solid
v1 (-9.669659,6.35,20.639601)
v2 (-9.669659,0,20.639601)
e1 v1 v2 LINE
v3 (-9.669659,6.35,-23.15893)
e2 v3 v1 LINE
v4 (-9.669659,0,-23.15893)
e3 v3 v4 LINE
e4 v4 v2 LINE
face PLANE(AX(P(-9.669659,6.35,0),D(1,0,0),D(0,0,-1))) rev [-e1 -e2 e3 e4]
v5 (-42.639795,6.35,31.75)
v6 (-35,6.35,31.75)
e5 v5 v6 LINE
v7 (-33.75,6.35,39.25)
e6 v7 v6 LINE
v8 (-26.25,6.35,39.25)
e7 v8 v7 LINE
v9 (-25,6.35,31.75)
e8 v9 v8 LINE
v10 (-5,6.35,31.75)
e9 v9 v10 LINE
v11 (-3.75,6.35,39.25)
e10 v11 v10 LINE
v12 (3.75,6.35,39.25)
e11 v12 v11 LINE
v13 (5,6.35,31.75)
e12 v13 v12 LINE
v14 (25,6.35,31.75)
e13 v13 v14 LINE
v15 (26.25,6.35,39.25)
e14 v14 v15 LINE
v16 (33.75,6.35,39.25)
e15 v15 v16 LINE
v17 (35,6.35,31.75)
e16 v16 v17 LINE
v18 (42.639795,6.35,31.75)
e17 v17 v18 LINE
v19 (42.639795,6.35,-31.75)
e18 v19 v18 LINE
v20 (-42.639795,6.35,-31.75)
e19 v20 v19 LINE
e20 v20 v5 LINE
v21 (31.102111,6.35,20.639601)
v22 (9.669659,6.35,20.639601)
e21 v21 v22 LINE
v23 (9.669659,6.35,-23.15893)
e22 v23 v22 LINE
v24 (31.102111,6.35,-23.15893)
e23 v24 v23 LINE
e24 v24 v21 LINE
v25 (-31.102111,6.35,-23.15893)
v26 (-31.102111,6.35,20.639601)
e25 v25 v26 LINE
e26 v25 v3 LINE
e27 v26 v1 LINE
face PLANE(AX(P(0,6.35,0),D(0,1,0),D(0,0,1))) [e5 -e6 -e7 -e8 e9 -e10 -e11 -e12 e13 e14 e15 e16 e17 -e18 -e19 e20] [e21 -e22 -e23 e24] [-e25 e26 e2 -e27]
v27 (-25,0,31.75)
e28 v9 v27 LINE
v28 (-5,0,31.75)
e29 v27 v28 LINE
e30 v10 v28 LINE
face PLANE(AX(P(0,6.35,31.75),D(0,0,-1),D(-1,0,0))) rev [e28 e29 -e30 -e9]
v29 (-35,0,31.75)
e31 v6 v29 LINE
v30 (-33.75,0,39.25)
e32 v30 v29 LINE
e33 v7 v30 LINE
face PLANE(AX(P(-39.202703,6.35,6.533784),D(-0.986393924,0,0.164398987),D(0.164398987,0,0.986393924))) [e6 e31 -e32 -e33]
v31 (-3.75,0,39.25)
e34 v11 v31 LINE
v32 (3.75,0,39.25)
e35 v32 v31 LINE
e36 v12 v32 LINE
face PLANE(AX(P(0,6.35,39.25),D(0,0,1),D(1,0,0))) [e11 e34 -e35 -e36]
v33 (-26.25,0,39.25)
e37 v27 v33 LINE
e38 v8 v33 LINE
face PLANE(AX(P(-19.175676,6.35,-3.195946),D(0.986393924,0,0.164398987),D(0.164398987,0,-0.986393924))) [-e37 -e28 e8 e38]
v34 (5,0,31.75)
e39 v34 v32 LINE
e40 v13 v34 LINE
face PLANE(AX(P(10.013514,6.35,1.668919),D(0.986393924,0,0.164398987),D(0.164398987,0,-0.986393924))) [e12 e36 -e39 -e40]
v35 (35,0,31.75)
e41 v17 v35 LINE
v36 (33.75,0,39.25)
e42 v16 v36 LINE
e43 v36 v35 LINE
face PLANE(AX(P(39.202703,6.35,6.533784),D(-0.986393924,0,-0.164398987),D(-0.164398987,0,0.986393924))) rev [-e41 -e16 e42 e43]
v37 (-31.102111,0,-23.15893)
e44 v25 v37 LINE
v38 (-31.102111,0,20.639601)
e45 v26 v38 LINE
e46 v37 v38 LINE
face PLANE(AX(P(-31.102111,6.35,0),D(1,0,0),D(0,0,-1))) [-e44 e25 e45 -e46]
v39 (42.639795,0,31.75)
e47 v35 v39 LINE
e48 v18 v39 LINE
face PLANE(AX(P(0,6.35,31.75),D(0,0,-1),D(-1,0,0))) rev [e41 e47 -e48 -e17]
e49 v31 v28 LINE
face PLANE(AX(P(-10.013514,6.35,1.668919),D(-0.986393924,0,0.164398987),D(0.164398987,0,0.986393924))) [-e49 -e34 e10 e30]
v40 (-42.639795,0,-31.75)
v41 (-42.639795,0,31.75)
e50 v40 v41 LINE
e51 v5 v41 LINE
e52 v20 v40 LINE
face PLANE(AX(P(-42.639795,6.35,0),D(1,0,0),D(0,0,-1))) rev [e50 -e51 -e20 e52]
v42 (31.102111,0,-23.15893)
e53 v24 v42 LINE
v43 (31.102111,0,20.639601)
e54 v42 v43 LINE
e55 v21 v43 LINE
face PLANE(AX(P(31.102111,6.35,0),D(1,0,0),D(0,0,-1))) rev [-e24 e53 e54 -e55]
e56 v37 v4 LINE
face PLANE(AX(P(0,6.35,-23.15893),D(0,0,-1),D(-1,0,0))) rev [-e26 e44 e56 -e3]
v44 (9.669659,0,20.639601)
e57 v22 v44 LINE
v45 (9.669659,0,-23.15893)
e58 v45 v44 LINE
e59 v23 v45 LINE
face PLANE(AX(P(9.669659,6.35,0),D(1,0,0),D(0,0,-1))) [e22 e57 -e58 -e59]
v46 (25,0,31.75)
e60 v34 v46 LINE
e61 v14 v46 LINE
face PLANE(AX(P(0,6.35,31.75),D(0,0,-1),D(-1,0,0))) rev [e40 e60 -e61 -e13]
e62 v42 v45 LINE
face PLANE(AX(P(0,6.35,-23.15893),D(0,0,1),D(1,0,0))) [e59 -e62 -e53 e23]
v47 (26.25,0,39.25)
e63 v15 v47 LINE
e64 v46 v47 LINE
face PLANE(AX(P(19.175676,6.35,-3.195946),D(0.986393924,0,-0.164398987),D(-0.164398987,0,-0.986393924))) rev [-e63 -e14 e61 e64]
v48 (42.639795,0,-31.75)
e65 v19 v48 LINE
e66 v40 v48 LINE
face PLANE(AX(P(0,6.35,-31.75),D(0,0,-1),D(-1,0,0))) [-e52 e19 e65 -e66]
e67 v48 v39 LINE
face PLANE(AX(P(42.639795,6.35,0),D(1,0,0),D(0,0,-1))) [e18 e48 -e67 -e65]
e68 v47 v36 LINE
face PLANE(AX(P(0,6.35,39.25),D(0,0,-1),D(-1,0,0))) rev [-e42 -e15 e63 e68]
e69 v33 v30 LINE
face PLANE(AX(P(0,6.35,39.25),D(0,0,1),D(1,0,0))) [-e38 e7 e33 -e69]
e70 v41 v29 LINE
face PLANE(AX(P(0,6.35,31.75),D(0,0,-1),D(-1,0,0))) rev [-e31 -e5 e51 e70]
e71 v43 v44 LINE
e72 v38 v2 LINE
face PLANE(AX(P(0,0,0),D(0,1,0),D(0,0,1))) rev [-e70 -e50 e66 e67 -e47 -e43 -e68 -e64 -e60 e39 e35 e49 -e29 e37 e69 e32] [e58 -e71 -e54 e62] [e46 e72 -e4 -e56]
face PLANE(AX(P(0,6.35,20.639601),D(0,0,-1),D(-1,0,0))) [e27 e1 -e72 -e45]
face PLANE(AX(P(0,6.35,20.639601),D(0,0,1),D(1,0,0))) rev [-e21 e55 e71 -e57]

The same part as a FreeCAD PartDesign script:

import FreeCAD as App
import Part
import Sketcher
from FreeCAD import Vector
Q = App.Units.Quantity


def add_polygon(sketch, points):
    """Adds a closed chain of lines whose ends are joined by coincident constraints."""
    first, n = sketch.GeometryCount, len(points)
    for a, b in zip(points, points[1:] + points[:1]):
        sketch.addGeometry(Part.LineSegment(App.Vector(*a, 0), App.Vector(*b, 0)), False)
    for i in range(n):
        sketch.addConstraint(Sketcher.Constraint("Coincident", first + i, 2, first + (i + 1) % n, 1))

doc = App.newDocument("Part")
body = doc.addObject("PartDesign::Body", "Body")

# Sketch on XZ plane
sketch1 = body.newObject("Sketcher::SketchObject", "Sketch")
sketch1.AttachmentSupport = (doc.getObject("XZ_Plane"), [""])
sketch1.MapMode = "FlatFace"
add_polygon(sketch1, [(-43, -32), (-43, 32), (-35, 32), (-34, 39), (-26, 39), (-25, 32), (-5, 32), (-4, 39), (4, 39), (5, 32), (25, 32), (26, 39), (34, 39), (35, 32), (43, 32), (43, -32)])  # lines 0-15
add_polygon(sketch1, [(-10, 21), (-31, 21), (-31, -23), (-10, -23)])  # lines 16-19
add_polygon(sketch1, [(31, 21), (10, 21), (10, -23), (31, -23)])  # lines 20-23
sketch1.addConstraint([
    Sketcher.Constraint("Vertical", 0),
    Sketcher.Constraint("Horizontal", 1),
    Sketcher.Constraint("Horizontal", 3),
    Sketcher.Constraint("Horizontal", 5),
    Sketcher.Constraint("Horizontal", 7),
    Sketcher.Constraint("Horizontal", 9),
    Sketcher.Constraint("Horizontal", 11),
    Sketcher.Constraint("Horizontal", 13),
    Sketcher.Constraint("Vertical", 14),
    Sketcher.Constraint("Horizontal", 15),
    Sketcher.Constraint("Horizontal", 16),
    Sketcher.Constraint("Vertical", 17),
    Sketcher.Constraint("Horizontal", 18),
    Sketcher.Constraint("Vertical", 19),
    Sketcher.Constraint("Horizontal", 20),
    Sketcher.Constraint("Vertical", 21),
    Sketcher.Constraint("Horizontal", 22),
    Sketcher.Constraint("Vertical", 23),
    Sketcher.Constraint("Symmetric", 0, 2, 14, 2, -1, 1),
    Sketcher.Constraint("Symmetric", 5, 2, 8, 2, -2),
    Sketcher.Constraint("Symmetric", 3, 2, 10, 2, -2),
    Sketcher.Constraint("Symmetric", 1, 2, 12, 2, -2),
    Sketcher.Constraint("Symmetric", 19, 2, 20, 2, -2),
    Sketcher.Constraint("Symmetric", 17, 2, 22, 2, -2),
    Sketcher.Constraint("Parallel", 2, 6),
    Sketcher.Constraint("Parallel", 4, 8),
    Sketcher.Constraint("Parallel", 6, 10),
    Sketcher.Constraint("Parallel", 8, 12),
    Sketcher.Constraint("Horizontal", 1, 2, 4, 2),
    Sketcher.Constraint("Horizontal", 3, 2, 6, 2),
    Sketcher.Constraint("Equal", 3, 7),
    Sketcher.Constraint("Equal", 5, 9),
    Sketcher.Constraint("DistanceX", 5, 1, 5, 2, Q("20 mm")),
    Sketcher.Constraint("DistanceX", 3, 1, 3, 2, Q("7.5 mm")),
    Sketcher.Constraint("DistanceY", 0, 1, 0, 2, Q("63.5 mm")),
    Sketcher.Constraint("DistanceX", 1, 2, -1, 1, Q("35 mm")),
    Sketcher.Constraint("DistanceY", 14, 2, 11, 2, Q("71 mm")),
    Sketcher.Constraint("DistanceX", 15, 2, 15, 1, Q("85.279591 mm")),
    Sketcher.Constraint("DistanceX", 16, 2, 16, 1, Q("21.432451 mm")),
    Sketcher.Constraint("DistanceY", 17, 2, 17, 1, Q("43.79853 mm")),
    Sketcher.Constraint("DistanceY", -1, 1, 16, 2, Q("20.639601 mm")),
    Sketcher.Constraint("DistanceX", 16, 2, -1, 1, Q("31.102111 mm")),
])
pad1 = body.newObject("PartDesign::Pad", "Pad")
pad1.Profile = sketch1
pad1.Length = 6.35
pad1.Reversed = True

doc.recompute()
